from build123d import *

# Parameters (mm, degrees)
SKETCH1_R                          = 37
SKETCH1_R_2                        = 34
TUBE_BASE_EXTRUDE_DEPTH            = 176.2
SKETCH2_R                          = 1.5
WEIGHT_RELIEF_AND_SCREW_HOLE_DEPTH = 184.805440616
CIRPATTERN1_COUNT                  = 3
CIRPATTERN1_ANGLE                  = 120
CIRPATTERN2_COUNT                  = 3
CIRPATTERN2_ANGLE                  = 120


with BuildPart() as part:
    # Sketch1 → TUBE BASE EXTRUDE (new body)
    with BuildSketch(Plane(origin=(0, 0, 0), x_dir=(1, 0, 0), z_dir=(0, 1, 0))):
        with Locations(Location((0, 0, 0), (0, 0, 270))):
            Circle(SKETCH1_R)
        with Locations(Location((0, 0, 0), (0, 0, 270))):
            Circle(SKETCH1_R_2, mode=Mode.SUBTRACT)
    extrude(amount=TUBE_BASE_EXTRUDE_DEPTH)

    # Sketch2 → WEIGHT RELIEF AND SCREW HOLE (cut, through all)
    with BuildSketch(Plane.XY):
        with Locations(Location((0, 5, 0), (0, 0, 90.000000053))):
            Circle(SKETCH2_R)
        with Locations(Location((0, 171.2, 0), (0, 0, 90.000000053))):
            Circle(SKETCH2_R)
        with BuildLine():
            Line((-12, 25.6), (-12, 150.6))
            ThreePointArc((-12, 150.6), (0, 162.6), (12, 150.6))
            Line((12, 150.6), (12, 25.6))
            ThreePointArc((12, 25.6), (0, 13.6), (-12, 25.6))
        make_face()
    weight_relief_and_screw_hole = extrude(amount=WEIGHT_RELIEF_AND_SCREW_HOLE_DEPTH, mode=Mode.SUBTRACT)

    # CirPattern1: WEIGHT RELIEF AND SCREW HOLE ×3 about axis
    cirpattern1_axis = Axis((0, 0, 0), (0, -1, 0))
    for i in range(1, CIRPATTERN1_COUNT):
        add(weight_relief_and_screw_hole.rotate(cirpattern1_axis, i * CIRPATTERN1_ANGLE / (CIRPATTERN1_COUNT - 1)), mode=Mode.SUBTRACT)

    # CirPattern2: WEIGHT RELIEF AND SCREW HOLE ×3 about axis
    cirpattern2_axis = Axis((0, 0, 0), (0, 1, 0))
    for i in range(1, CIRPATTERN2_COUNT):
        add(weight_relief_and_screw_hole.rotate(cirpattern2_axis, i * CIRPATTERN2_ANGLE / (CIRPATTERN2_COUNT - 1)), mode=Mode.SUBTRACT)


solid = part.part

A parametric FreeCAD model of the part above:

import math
import FreeCAD as App
import Part
import Sketcher

doc = App.newDocument("Part")
body = doc.addObject("PartDesign::Body", "Body")

sketch1 = body.newObject("Sketcher::SketchObject", "Sketch")
sketch1.AttachmentSupport = (doc.getObject("XZ_Plane"), [""])
sketch1.MapMode = "FlatFace"
sketch1.addGeometry([
    Part.Circle(App.Vector(0, 0, 0), App.Vector(0, 0, 1), 37),
    Part.Circle(App.Vector(0, 0, 0), App.Vector(0, 0, 1), 34),
], False)
sketch1.addConstraint([
    Sketcher.Constraint("Coincident", 0, 3, -1, 1),
    Sketcher.Constraint("Coincident", 1, 3, -1, 1),
    Sketcher.Constraint("Diameter", 0, 74.0),
    Sketcher.Constraint("Diameter", 1, 68.0),
])
pad1 = body.newObject("PartDesign::Pad", "Pad")
pad1.Profile = sketch1
pad1.Length = 176.2
pad1.Reversed = True

sketch2 = body.newObject("Sketcher::SketchObject", "Sketch001")
sketch2.AttachmentSupport = (doc.getObject("XY_Plane"), [""])
sketch2.MapMode = "FlatFace"
sketch2.addGeometry([
    Part.Circle(App.Vector(0, 5, 0), App.Vector(0, 0, 1), 1.5),
    Part.Circle(App.Vector(0, 171.2, 0), App.Vector(0, 0, 1), 1.5),
    Part.LineSegment(App.Vector(-12, 150.6, 0), App.Vector(-12, 25.6, 0)),
    Part.ArcOfCircle(Part.Circle(App.Vector(0, 25.6, 0), App.Vector(0, 0, 1), 12), math.radians(180), math.radians(360)),
    Part.LineSegment(App.Vector(12, 25.6, 0), App.Vector(12, 150.6, 0)),
    Part.ArcOfCircle(Part.Circle(App.Vector(0, 150.6, 0), App.Vector(0, 0, 1), 12), math.radians(0), math.radians(180)),
], False)
sketch2.addConstraint([
    Sketcher.Constraint("Tangent", 2, 2, 3, 1),
    Sketcher.Constraint("Tangent", 3, 2, 4, 1),
    Sketcher.Constraint("Tangent", 4, 2, 5, 1),
    Sketcher.Constraint("Tangent", 5, 2, 2, 1),
    Sketcher.Constraint("Vertical", 2),
    Sketcher.Constraint("Vertical", 4),
    Sketcher.Constraint("Equal", 0, 1),
    Sketcher.Constraint("PointOnObject", 0, 3, -2),
    Sketcher.Constraint("PointOnObject", 1, 3, -2),
    Sketcher.Constraint("PointOnObject", 3, 3, -2),
    Sketcher.Constraint("Diameter", 0, 3.0),
    Sketcher.Constraint("Radius", 3, 12.0),
    Sketcher.Constraint("DistanceY", 2, 2, 2, 1, 125.0),
    Sketcher.Constraint("DistanceY", -1, 1, 0, 3, 5.0),
    Sketcher.Constraint("DistanceY", -1, 1, 1, 3, 171.2),
    Sketcher.Constraint("DistanceY", -1, 1, 3, 3, 25.6),
])
pocket1 = body.newObject("PartDesign::Pocket", "Pocket")
pocket1.Profile = sketch2
pocket1.Type = "ThroughAll"
pocket1.Reversed = True
doc.recompute()

polarpattern = body.newObject("PartDesign::PolarPattern", "PolarPattern")
polarpattern.Originals = [pocket1]
polarpattern.Axis = (doc.getObject("Y_Axis"), [""])
polarpattern.Angle = 120
polarpattern.Occurrences = 3
polarpattern.Reversed = True
body.Tip = polarpattern
doc.recompute()

polarpattern2 = body.newObject("PartDesign::PolarPattern", "PolarPattern001")
polarpattern2.Originals = [pocket1]
polarpattern2.Axis = (doc.getObject("Y_Axis"), [""])
polarpattern2.Angle = 120
polarpattern2.Occurrences = 3
body.Tip = polarpattern2

doc.recompute()
